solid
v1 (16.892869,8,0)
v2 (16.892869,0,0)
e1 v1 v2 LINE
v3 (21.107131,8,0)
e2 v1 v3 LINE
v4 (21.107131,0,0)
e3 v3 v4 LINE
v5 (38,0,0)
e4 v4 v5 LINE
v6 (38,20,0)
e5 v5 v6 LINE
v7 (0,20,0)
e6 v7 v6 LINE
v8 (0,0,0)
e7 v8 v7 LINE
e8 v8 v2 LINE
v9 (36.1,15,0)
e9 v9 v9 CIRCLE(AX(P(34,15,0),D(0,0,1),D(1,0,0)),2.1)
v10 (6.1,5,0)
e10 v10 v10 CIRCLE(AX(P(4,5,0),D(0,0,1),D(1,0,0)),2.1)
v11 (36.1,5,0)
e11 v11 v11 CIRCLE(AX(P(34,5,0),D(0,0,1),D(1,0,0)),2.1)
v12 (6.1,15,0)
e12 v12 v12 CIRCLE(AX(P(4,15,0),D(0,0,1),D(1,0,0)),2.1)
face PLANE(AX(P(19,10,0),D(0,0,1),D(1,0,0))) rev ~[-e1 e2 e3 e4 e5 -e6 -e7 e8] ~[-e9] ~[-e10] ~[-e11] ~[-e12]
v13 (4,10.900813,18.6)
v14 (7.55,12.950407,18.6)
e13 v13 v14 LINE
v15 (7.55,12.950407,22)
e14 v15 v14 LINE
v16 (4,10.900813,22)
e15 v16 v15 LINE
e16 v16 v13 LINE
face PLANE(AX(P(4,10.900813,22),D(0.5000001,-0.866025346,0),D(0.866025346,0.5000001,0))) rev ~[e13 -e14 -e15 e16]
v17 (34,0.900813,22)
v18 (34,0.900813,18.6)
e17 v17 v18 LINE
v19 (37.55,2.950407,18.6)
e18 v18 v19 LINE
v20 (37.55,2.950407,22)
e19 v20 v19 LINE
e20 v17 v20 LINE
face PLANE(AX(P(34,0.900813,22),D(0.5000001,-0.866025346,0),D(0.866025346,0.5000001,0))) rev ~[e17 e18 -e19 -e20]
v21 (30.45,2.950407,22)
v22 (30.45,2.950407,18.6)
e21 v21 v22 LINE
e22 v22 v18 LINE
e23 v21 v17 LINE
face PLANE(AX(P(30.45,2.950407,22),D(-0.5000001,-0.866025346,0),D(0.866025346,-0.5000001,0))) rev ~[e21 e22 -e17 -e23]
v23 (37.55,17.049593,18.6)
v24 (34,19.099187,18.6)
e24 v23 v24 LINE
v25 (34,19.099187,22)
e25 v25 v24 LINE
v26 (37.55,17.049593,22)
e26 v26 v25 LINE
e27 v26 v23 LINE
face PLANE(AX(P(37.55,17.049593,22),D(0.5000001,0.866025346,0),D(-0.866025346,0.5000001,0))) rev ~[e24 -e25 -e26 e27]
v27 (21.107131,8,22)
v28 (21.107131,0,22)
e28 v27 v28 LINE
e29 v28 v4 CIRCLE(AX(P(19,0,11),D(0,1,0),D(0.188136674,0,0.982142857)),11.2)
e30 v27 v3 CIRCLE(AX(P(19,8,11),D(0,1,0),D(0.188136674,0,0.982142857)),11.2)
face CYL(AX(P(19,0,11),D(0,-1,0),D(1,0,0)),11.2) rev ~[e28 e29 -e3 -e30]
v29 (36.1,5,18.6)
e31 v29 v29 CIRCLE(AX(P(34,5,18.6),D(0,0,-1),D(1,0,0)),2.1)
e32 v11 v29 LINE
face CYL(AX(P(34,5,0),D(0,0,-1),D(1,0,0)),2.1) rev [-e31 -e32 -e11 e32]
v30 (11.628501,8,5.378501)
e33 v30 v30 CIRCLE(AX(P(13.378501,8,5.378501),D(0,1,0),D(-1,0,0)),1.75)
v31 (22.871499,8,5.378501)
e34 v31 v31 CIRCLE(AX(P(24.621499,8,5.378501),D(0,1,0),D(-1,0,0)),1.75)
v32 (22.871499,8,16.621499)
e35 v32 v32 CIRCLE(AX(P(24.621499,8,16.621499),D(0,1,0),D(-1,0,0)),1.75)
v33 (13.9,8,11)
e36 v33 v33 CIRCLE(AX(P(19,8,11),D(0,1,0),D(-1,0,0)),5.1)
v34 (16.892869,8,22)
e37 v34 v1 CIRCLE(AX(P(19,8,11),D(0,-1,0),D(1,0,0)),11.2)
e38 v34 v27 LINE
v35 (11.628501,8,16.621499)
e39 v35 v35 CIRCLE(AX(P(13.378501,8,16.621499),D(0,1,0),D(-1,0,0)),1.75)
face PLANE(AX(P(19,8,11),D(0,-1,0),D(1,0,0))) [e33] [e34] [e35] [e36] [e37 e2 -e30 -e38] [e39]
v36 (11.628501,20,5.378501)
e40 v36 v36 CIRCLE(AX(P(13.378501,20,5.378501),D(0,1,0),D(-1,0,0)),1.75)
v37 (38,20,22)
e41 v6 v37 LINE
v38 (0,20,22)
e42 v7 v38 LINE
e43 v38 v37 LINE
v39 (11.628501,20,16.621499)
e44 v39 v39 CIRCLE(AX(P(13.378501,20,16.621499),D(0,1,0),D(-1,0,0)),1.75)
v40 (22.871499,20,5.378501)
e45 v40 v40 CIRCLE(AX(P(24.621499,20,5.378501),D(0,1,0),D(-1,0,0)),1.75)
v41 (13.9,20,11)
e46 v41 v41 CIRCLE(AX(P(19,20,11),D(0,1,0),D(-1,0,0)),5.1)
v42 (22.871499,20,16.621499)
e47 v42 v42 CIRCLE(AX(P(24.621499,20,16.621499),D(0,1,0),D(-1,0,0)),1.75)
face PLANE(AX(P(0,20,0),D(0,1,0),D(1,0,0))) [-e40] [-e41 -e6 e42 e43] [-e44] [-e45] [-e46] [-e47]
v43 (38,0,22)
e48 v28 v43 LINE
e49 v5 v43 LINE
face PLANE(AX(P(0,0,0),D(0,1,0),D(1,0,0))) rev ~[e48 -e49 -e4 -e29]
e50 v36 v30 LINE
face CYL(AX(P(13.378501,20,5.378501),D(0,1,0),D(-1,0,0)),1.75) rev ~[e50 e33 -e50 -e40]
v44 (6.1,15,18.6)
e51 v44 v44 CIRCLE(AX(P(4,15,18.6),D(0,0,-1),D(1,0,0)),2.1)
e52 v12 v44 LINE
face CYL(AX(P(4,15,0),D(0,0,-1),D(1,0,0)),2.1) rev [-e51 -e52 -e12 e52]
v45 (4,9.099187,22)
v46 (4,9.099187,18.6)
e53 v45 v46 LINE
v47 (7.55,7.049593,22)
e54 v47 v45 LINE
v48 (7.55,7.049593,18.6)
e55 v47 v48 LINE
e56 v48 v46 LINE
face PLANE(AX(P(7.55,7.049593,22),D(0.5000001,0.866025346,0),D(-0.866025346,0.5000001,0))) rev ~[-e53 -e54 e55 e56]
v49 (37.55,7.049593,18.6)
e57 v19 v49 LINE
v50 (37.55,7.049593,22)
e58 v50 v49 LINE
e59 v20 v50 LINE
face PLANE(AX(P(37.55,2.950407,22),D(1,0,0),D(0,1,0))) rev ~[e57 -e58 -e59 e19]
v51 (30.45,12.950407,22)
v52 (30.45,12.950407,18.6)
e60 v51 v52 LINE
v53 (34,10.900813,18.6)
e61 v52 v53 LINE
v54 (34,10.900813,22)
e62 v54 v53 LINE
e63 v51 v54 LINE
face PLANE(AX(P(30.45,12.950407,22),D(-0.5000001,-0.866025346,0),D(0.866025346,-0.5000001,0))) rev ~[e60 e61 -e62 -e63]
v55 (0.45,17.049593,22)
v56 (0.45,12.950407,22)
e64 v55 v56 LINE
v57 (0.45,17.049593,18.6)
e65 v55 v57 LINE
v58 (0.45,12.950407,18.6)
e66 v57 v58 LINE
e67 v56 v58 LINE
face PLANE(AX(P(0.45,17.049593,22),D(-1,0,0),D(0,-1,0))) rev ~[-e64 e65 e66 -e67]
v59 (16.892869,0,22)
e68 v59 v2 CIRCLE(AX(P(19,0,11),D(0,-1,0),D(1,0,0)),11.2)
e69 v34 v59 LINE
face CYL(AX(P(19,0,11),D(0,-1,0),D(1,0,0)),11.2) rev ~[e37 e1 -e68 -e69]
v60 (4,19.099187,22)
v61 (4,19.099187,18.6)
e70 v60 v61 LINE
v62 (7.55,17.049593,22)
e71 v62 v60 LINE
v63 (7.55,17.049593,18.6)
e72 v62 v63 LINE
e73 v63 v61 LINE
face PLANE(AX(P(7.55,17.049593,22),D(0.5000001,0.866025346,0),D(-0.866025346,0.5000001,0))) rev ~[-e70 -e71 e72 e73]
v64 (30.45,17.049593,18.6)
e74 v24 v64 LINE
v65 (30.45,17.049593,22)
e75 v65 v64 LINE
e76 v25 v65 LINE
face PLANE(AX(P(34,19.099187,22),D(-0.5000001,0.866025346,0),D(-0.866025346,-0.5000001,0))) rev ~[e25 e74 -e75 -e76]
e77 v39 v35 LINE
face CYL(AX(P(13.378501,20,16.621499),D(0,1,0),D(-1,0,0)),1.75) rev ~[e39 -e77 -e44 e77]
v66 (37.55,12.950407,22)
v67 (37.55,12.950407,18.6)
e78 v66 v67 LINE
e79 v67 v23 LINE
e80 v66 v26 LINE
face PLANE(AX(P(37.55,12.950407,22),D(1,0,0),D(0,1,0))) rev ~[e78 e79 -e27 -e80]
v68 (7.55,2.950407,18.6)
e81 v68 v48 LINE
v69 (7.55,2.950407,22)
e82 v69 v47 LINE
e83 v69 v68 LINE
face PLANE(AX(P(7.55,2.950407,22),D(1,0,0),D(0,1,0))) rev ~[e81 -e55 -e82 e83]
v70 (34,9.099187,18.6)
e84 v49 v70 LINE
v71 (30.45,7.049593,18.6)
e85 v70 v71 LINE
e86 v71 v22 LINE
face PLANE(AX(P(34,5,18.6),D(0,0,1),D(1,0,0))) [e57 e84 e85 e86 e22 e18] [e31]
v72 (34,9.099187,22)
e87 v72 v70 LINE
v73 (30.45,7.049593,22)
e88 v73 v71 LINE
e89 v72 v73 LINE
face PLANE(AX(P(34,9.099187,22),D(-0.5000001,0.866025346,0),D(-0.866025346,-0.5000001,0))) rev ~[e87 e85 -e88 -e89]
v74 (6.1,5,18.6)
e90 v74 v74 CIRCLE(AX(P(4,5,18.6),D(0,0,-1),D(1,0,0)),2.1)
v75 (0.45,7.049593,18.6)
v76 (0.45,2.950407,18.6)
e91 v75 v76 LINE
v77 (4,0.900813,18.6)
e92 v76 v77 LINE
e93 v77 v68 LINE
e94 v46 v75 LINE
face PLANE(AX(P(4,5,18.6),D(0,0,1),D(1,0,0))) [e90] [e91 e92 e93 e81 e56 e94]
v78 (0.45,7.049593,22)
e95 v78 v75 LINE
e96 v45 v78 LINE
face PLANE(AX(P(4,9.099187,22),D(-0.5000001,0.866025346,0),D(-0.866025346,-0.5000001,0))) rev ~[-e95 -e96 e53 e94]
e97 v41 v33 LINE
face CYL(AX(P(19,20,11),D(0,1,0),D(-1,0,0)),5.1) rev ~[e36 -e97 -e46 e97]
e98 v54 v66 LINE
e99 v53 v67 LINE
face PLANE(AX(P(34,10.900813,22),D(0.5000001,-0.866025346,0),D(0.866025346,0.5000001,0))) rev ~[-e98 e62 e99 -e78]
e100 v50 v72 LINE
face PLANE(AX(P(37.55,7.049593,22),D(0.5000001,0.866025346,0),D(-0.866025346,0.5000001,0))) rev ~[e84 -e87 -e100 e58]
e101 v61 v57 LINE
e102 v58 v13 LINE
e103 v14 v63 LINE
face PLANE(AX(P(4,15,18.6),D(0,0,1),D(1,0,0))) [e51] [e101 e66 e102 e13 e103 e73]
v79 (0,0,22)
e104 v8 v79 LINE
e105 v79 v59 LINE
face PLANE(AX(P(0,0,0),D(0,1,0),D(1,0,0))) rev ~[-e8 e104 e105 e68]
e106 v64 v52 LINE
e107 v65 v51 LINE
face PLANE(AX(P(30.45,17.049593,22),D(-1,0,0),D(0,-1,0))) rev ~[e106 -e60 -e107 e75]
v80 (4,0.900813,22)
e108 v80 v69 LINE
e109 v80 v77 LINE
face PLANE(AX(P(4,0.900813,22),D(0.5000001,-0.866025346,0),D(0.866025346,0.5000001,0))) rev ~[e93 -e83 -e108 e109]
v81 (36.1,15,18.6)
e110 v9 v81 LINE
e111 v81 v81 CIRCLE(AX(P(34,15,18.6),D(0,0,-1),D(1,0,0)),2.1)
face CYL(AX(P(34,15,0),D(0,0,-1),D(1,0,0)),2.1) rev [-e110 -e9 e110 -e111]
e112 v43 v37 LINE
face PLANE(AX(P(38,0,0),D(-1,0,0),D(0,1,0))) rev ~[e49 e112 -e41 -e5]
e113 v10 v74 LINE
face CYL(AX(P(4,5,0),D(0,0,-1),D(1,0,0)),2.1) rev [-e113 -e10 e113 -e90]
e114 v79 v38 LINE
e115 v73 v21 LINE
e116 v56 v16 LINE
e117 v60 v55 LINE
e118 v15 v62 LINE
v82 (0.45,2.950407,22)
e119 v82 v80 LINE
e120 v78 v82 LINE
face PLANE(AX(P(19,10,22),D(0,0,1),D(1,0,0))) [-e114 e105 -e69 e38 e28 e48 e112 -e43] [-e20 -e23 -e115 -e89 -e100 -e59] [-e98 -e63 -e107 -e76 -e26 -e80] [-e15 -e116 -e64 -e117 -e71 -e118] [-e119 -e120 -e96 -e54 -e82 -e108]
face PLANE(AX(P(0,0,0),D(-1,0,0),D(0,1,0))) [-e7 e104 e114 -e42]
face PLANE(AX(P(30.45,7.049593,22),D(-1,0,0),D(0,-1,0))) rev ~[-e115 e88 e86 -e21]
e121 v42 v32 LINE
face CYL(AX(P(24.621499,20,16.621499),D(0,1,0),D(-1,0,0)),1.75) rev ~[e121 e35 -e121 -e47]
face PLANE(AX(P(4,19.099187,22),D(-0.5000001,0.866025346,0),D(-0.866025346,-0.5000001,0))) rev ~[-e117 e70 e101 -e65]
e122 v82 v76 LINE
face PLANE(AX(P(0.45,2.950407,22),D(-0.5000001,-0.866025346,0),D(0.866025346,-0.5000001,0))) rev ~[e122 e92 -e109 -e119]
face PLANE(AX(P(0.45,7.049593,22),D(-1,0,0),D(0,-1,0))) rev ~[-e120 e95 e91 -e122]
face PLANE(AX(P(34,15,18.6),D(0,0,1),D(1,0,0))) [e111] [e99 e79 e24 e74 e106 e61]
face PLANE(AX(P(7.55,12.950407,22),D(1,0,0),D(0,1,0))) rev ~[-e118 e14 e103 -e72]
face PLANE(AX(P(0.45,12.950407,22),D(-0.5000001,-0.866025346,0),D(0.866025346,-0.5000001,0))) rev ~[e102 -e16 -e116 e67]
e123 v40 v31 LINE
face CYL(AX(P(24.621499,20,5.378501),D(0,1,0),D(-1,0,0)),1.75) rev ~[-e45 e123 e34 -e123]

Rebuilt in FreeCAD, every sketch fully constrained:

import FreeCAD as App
import Part
import Sketcher
Q = App.Units.Quantity

doc = App.newDocument("Part")
body = doc.addObject("PartDesign::Body", "Body")

# Sketch on XY plane
sketch1 = body.newObject("Sketcher::SketchObject", "Sketch")
sketch1.AttachmentSupport = (doc.getObject("XY_Plane"), [""])
sketch1.MapMode = "FlatFace"
sketch1.addGeometry([
    Part.LineSegment(App.Vector(0, 20, 0), App.Vector(0, 0, 0)),  # 0
    Part.LineSegment(App.Vector(0, 0, 0), App.Vector(38, 0, 0)),  # 1
    Part.LineSegment(App.Vector(38, 0, 0), App.Vector(38, 20, 0)),  # 2
    Part.LineSegment(App.Vector(38, 20, 0), App.Vector(0, 20, 0)),  # 3
    Part.Circle(App.Vector(4, 5, 0), App.Vector(0, 0, 1), 2.1),  # 4
    Part.Circle(App.Vector(34, 5, 0), App.Vector(0, 0, 1), 2.1),  # 5
    Part.Circle(App.Vector(4, 15, 0), App.Vector(0, 0, 1), 2.1),  # 6
    Part.Circle(App.Vector(34, 15, 0), App.Vector(0, 0, 1), 2.1),  # 7
], False)
sketch1.addConstraint([
    Sketcher.Constraint("Coincident", 0, 2, 1, 1),
    Sketcher.Constraint("Coincident", 1, 2, 2, 1),
    Sketcher.Constraint("Coincident", 2, 2, 3, 1),
    Sketcher.Constraint("Coincident", 3, 2, 0, 1),
    Sketcher.Constraint("Vertical", 0),
    Sketcher.Constraint("Horizontal", 1),
    Sketcher.Constraint("Vertical", 2),
    Sketcher.Constraint("Horizontal", 3),
    Sketcher.Constraint("Coincident", 0, 2, -1, 1),
    Sketcher.Constraint("Equal", 4, 5),
    Sketcher.Constraint("Equal", 5, 6),
    Sketcher.Constraint("Equal", 6, 7),
    Sketcher.Constraint("Horizontal", 4, 3, 5, 3),
    Sketcher.Constraint("Horizontal", 6, 3, 7, 3),
    Sketcher.Constraint("Vertical", 4, 3, 6, 3),
    Sketcher.Constraint("Vertical", 5, 3, 7, 3),
    Sketcher.Constraint("Diameter", 4, 4.2),
    Sketcher.Constraint("DistanceX", 1, 1, 1, 2, 38.0),
    Sketcher.Constraint("DistanceY", 0, 2, 0, 1, 20.0),
    Sketcher.Constraint("DistanceX", -1, 1, 4, 3, 4.0),
    Sketcher.Constraint("DistanceY", -1, 1, 4, 3, 5.0),
    Sketcher.Constraint("DistanceX", -1, 1, 5, 3, 34.0),
    Sketcher.Constraint("DistanceY", -1, 1, 6, 3, 15.0),
])
pad1 = body.newObject("PartDesign::Pad", "Pad")
pad1.Profile = sketch1
pad1.Length = 22

# Sketch on XZ plane
sketch2 = body.newObject("Sketcher::SketchObject", "Sketch001")
sketch2.AttachmentSupport = (doc.getObject("XZ_Plane"), [""])
sketch2.MapMode = "FlatFace"
sketch2.addGeometry(Part.Circle(App.Vector(19, 11, 0), App.Vector(0, 0, 1), 11), False)
sketch2.addConstraint([
    Sketcher.Constraint("Diameter", 0, 22.4),
    Sketcher.Constraint("DistanceX", -1, 1, 0, 3, 19.0),
    Sketcher.Constraint("DistanceY", -1, 1, 0, 3, 11.0),
])
pocket1 = body.newObject("PartDesign::Pocket", "Pocket")
pocket1.Profile = sketch2
pocket1.Length = 8

# Sketch on XZ plane
sketch3 = body.newObject("Sketcher::SketchObject", "Sketch002")
sketch3.AttachmentSupport = (doc.getObject("XZ_Plane"), [""])
sketch3.MapMode = "FlatFace"
sketch3.AttachmentOffset = App.Placement(App.Vector(0, 0, -20), App.Rotation())
sketch3.addGeometry([
    Part.Circle(App.Vector(19, 11, 0), App.Vector(0, 0, 1), 5.1),  # 0
    Part.Circle(App.Vector(13.4, 16.6, 0), App.Vector(0, 0, 1), 1.8),  # 1
    Part.Circle(App.Vector(24.6, 5.4, 0), App.Vector(0, 0, 1), 1.8),  # 2
    Part.Circle(App.Vector(24.6, 16.6, 0), App.Vector(0, 0, 1), 1.8),  # 3
    Part.Circle(App.Vector(13.4, 5.4, 0), App.Vector(0, 0, 1), 1.8),  # 4
], False)
sketch3.addConstraint([
    Sketcher.Constraint("Equal", 1, 2),
    Sketcher.Constraint("Equal", 2, 3),
    Sketcher.Constraint("Equal", 3, 4),
    Sketcher.Constraint("Horizontal", 1, 3, 3, 3),
    Sketcher.Constraint("Horizontal", 2, 3, 4, 3),
    Sketcher.Constraint("Vertical", 2, 3, 3, 3),
    Sketcher.Constraint("Vertical", 1, 3, 4, 3),
    Sketcher.Constraint("Diameter", 0, 10.2),
    Sketcher.Constraint("Diameter", 1, 3.5),
    Sketcher.Constraint("DistanceX", -1, 1, 0, 3, 19.0),
    Sketcher.Constraint("DistanceY", -1, 1, 0, 3, 11.0),
    Sketcher.Constraint("DistanceX", -1, 1, 1, 3, 13.378501),
    Sketcher.Constraint("DistanceY", -1, 1, 1, 3, 16.621499),
    Sketcher.Constraint("DistanceX", -1, 1, 2, 3, 24.621499),
    Sketcher.Constraint("DistanceY", -1, 1, 2, 3, 5.378501),
])
pocket2 = body.newObject("PartDesign::Pocket", "Pocket001")
pocket2.Profile = sketch3
pocket2.Length = 20
pocket2.Reversed = True

# Sketch on XY plane
sketch4 = body.newObject("Sketcher::SketchObject", "Sketch003")
sketch4.AttachmentSupport = (doc.getObject("XY_Plane"), [""])
sketch4.MapMode = "FlatFace"
sketch4.AttachmentOffset = App.Placement(App.Vector(0, 0, 22), App.Rotation())
sketch4.addGeometry([
    Part.LineSegment(App.Vector(4, 10.9, 0), App.Vector(7.5, 13, 0)),  # 0
    Part.LineSegment(App.Vector(7.5, 13, 0), App.Vector(7.5, 17, 0)),  # 1
    Part.LineSegment(App.Vector(7.5, 17, 0), App.Vector(4, 19.1, 0)),  # 2
    Part.LineSegment(App.Vector(4, 19.1, 0), App.Vector(0.5, 17, 0)),  # 3
    Part.LineSegment(App.Vector(0.5, 17, 0), App.Vector(0.5, 13, 0)),  # 4
    Part.LineSegment(App.Vector(0.5, 13, 0), App.Vector(4, 10.9, 0)),  # 5
    Part.LineSegment(App.Vector(34, 10.9, 0), App.Vector(37.5, 13, 0)),  # 6
    Part.LineSegment(App.Vector(37.5, 13, 0), App.Vector(37.5, 17, 0)),  # 7
    Part.LineSegment(App.Vector(37.5, 17, 0), App.Vector(34, 19.1, 0)),  # 8
    Part.LineSegment(App.Vector(34, 19.1, 0), App.Vector(30.4, 17, 0)),  # 9
    Part.LineSegment(App.Vector(30.4, 17, 0), App.Vector(30.4, 13, 0)),  # 10
    Part.LineSegment(App.Vector(30.4, 13, 0), App.Vector(34, 10.9, 0)),  # 11
    Part.LineSegment(App.Vector(34, 9.1, 0), App.Vector(30.4, 7, 0)),  # 12
    Part.LineSegment(App.Vector(30.4, 7, 0), App.Vector(30.4, 3, 0)),  # 13
    Part.LineSegment(App.Vector(30.4, 3, 0), App.Vector(34, 0.9, 0)),  # 14
    Part.LineSegment(App.Vector(34, 0.9, 0), App.Vector(37.5, 3, 0)),  # 15
    Part.LineSegment(App.Vector(37.5, 3, 0), App.Vector(37.5, 7, 0)),  # 16
    Part.LineSegment(App.Vector(37.5, 7, 0), App.Vector(34, 9.1, 0)),  # 17
    Part.LineSegment(App.Vector(4, 9.1, 0), App.Vector(0.5, 7, 0)),  # 18
    Part.LineSegment(App.Vector(0.5, 7, 0), App.Vector(0.5, 3, 0)),  # 19
    Part.LineSegment(App.Vector(0.5, 3, 0), App.Vector(4, 0.9, 0)),  # 20
    Part.LineSegment(App.Vector(4, 0.9, 0), App.Vector(7.5, 3, 0)),  # 21
    Part.LineSegment(App.Vector(7.5, 3, 0), App.Vector(7.5, 7, 0)),  # 22
    Part.LineSegment(App.Vector(7.5, 7, 0), App.Vector(4, 9.1, 0)),  # 23
], False)
sketch4.addConstraint([
    Sketcher.Constraint("Coincident", 0, 2, 1, 1),
    Sketcher.Constraint("Coincident", 1, 2, 2, 1),
    Sketcher.Constraint("Coincident", 2, 2, 3, 1),
    Sketcher.Constraint("Coincident", 3, 2, 4, 1),
    Sketcher.Constraint("Coincident", 4, 2, 5, 1),
    Sketcher.Constraint("Coincident", 5, 2, 0, 1),
    Sketcher.Constraint("Coincident", 6, 2, 7, 1),
    Sketcher.Constraint("Coincident", 7, 2, 8, 1),
    Sketcher.Constraint("Coincident", 8, 2, 9, 1),
    Sketcher.Constraint("Coincident", 9, 2, 10, 1),
    Sketcher.Constraint("Coincident", 10, 2, 11, 1),
    Sketcher.Constraint("Coincident", 11, 2, 6, 1),
    Sketcher.Constraint("Coincident", 12, 2, 13, 1),
    Sketcher.Constraint("Coincident", 13, 2, 14, 1),
    Sketcher.Constraint("Coincident", 14, 2, 15, 1),
    Sketcher.Constraint("Coincident", 15, 2, 16, 1),
    Sketcher.Constraint("Coincident", 16, 2, 17, 1),
    Sketcher.Constraint("Coincident", 17, 2, 12, 1),
    Sketcher.Constraint("Coincident", 18, 2, 19, 1),
    Sketcher.Constraint("Coincident", 19, 2, 20, 1),
    Sketcher.Constraint("Coincident", 20, 2, 21, 1),
    Sketcher.Constraint("Coincident", 21, 2, 22, 1),
    Sketcher.Constraint("Coincident", 22, 2, 23, 1),
    Sketcher.Constraint("Coincident", 23, 2, 18, 1),
    Sketcher.Constraint("Vertical", 1),
    Sketcher.Constraint("Vertical", 4),
    Sketcher.Constraint("Vertical", 7),
    Sketcher.Constraint("Vertical", 10),
    Sketcher.Constraint("Vertical", 13),
    Sketcher.Constraint("Vertical", 16),
    Sketcher.Constraint("Vertical", 19),
    Sketcher.Constraint("Vertical", 22),
    Sketcher.Constraint("Parallel", 0, 3),
    Sketcher.Constraint("Parallel", 2, 5),
    Sketcher.Constraint("Parallel", 3, 6),
    Sketcher.Constraint("Parallel", 5, 8),
    Sketcher.Constraint("Parallel", 6, 9),
    Sketcher.Constraint("Parallel", 8, 11),
    Sketcher.Constraint("Parallel", 9, 12),
    Sketcher.Constraint("Parallel", 11, 14),
    Sketcher.Constraint("Parallel", 12, 15),
    Sketcher.Constraint("Parallel", 14, 17),
    Sketcher.Constraint("Parallel", 15, 18),
    Sketcher.Constraint("Parallel", 17, 20),
    Sketcher.Constraint("Parallel", 18, 21),
    Sketcher.Constraint("Parallel", 20, 23),
    Sketcher.Constraint("Horizontal", 1, 2, 3, 2),
    Sketcher.Constraint("Horizontal", 0, 2, 4, 2),
    Sketcher.Constraint("Horizontal", 4, 2, 6, 2),
    Sketcher.Constraint("Horizontal", 3, 2, 7, 2),
    Sketcher.Constraint("Horizontal", 2, 2, 8, 2),
    Sketcher.Constraint("Horizontal", 7, 2, 9, 2),
    Sketcher.Constraint("Horizontal", 6, 2, 10, 2),
    Sketcher.Constraint("Horizontal", 13, 2, 15, 2),
    Sketcher.Constraint("Horizontal", 12, 2, 16, 2),
    Sketcher.Constraint("Horizontal", 16, 2, 18, 2),
    Sketcher.Constraint("Horizontal", 15, 2, 19, 2),
    Sketcher.Constraint("Horizontal", 14, 2, 20, 2),
    Sketcher.Constraint("Horizontal", 19, 2, 21, 2),
    Sketcher.Constraint("Horizontal", 18, 2, 22, 2),
    Sketcher.Constraint("Vertical", 2, 2, 5, 2),
    Sketcher.Constraint("Vertical", 10, 2, 12, 2),
    Sketcher.Constraint("Vertical", 11, 2, 14, 2),
    Sketcher.Constraint("Vertical", 4, 2, 18, 2),
    Sketcher.Constraint("Equal", 10, 13),
    Sketcher.Constraint("Angle", 0, Q("30.000007 deg")),
    Sketcher.Constraint("DistanceX", -1, 1, 2, 2, 4.0),
    Sketcher.Constraint("DistanceX", -1, 1, 8, 2, 34.0),
    Sketcher.Constraint("DistanceY", 12, 2, 9, 2, 10.0),
    Sketcher.Constraint("DistanceX", 3, 2, 1, 2, 7.1),
    Sketcher.Constraint("DistanceY", 1, 1, 1, 2, 4.099186),
    Sketcher.Constraint("DistanceY", -1, 1, 0, 2, 12.950407),
])
pocket3 = body.newObject("PartDesign::Pocket", "Pocket002")
pocket3.Profile = sketch4
pocket3.Length = 3.4

doc.recompute()
